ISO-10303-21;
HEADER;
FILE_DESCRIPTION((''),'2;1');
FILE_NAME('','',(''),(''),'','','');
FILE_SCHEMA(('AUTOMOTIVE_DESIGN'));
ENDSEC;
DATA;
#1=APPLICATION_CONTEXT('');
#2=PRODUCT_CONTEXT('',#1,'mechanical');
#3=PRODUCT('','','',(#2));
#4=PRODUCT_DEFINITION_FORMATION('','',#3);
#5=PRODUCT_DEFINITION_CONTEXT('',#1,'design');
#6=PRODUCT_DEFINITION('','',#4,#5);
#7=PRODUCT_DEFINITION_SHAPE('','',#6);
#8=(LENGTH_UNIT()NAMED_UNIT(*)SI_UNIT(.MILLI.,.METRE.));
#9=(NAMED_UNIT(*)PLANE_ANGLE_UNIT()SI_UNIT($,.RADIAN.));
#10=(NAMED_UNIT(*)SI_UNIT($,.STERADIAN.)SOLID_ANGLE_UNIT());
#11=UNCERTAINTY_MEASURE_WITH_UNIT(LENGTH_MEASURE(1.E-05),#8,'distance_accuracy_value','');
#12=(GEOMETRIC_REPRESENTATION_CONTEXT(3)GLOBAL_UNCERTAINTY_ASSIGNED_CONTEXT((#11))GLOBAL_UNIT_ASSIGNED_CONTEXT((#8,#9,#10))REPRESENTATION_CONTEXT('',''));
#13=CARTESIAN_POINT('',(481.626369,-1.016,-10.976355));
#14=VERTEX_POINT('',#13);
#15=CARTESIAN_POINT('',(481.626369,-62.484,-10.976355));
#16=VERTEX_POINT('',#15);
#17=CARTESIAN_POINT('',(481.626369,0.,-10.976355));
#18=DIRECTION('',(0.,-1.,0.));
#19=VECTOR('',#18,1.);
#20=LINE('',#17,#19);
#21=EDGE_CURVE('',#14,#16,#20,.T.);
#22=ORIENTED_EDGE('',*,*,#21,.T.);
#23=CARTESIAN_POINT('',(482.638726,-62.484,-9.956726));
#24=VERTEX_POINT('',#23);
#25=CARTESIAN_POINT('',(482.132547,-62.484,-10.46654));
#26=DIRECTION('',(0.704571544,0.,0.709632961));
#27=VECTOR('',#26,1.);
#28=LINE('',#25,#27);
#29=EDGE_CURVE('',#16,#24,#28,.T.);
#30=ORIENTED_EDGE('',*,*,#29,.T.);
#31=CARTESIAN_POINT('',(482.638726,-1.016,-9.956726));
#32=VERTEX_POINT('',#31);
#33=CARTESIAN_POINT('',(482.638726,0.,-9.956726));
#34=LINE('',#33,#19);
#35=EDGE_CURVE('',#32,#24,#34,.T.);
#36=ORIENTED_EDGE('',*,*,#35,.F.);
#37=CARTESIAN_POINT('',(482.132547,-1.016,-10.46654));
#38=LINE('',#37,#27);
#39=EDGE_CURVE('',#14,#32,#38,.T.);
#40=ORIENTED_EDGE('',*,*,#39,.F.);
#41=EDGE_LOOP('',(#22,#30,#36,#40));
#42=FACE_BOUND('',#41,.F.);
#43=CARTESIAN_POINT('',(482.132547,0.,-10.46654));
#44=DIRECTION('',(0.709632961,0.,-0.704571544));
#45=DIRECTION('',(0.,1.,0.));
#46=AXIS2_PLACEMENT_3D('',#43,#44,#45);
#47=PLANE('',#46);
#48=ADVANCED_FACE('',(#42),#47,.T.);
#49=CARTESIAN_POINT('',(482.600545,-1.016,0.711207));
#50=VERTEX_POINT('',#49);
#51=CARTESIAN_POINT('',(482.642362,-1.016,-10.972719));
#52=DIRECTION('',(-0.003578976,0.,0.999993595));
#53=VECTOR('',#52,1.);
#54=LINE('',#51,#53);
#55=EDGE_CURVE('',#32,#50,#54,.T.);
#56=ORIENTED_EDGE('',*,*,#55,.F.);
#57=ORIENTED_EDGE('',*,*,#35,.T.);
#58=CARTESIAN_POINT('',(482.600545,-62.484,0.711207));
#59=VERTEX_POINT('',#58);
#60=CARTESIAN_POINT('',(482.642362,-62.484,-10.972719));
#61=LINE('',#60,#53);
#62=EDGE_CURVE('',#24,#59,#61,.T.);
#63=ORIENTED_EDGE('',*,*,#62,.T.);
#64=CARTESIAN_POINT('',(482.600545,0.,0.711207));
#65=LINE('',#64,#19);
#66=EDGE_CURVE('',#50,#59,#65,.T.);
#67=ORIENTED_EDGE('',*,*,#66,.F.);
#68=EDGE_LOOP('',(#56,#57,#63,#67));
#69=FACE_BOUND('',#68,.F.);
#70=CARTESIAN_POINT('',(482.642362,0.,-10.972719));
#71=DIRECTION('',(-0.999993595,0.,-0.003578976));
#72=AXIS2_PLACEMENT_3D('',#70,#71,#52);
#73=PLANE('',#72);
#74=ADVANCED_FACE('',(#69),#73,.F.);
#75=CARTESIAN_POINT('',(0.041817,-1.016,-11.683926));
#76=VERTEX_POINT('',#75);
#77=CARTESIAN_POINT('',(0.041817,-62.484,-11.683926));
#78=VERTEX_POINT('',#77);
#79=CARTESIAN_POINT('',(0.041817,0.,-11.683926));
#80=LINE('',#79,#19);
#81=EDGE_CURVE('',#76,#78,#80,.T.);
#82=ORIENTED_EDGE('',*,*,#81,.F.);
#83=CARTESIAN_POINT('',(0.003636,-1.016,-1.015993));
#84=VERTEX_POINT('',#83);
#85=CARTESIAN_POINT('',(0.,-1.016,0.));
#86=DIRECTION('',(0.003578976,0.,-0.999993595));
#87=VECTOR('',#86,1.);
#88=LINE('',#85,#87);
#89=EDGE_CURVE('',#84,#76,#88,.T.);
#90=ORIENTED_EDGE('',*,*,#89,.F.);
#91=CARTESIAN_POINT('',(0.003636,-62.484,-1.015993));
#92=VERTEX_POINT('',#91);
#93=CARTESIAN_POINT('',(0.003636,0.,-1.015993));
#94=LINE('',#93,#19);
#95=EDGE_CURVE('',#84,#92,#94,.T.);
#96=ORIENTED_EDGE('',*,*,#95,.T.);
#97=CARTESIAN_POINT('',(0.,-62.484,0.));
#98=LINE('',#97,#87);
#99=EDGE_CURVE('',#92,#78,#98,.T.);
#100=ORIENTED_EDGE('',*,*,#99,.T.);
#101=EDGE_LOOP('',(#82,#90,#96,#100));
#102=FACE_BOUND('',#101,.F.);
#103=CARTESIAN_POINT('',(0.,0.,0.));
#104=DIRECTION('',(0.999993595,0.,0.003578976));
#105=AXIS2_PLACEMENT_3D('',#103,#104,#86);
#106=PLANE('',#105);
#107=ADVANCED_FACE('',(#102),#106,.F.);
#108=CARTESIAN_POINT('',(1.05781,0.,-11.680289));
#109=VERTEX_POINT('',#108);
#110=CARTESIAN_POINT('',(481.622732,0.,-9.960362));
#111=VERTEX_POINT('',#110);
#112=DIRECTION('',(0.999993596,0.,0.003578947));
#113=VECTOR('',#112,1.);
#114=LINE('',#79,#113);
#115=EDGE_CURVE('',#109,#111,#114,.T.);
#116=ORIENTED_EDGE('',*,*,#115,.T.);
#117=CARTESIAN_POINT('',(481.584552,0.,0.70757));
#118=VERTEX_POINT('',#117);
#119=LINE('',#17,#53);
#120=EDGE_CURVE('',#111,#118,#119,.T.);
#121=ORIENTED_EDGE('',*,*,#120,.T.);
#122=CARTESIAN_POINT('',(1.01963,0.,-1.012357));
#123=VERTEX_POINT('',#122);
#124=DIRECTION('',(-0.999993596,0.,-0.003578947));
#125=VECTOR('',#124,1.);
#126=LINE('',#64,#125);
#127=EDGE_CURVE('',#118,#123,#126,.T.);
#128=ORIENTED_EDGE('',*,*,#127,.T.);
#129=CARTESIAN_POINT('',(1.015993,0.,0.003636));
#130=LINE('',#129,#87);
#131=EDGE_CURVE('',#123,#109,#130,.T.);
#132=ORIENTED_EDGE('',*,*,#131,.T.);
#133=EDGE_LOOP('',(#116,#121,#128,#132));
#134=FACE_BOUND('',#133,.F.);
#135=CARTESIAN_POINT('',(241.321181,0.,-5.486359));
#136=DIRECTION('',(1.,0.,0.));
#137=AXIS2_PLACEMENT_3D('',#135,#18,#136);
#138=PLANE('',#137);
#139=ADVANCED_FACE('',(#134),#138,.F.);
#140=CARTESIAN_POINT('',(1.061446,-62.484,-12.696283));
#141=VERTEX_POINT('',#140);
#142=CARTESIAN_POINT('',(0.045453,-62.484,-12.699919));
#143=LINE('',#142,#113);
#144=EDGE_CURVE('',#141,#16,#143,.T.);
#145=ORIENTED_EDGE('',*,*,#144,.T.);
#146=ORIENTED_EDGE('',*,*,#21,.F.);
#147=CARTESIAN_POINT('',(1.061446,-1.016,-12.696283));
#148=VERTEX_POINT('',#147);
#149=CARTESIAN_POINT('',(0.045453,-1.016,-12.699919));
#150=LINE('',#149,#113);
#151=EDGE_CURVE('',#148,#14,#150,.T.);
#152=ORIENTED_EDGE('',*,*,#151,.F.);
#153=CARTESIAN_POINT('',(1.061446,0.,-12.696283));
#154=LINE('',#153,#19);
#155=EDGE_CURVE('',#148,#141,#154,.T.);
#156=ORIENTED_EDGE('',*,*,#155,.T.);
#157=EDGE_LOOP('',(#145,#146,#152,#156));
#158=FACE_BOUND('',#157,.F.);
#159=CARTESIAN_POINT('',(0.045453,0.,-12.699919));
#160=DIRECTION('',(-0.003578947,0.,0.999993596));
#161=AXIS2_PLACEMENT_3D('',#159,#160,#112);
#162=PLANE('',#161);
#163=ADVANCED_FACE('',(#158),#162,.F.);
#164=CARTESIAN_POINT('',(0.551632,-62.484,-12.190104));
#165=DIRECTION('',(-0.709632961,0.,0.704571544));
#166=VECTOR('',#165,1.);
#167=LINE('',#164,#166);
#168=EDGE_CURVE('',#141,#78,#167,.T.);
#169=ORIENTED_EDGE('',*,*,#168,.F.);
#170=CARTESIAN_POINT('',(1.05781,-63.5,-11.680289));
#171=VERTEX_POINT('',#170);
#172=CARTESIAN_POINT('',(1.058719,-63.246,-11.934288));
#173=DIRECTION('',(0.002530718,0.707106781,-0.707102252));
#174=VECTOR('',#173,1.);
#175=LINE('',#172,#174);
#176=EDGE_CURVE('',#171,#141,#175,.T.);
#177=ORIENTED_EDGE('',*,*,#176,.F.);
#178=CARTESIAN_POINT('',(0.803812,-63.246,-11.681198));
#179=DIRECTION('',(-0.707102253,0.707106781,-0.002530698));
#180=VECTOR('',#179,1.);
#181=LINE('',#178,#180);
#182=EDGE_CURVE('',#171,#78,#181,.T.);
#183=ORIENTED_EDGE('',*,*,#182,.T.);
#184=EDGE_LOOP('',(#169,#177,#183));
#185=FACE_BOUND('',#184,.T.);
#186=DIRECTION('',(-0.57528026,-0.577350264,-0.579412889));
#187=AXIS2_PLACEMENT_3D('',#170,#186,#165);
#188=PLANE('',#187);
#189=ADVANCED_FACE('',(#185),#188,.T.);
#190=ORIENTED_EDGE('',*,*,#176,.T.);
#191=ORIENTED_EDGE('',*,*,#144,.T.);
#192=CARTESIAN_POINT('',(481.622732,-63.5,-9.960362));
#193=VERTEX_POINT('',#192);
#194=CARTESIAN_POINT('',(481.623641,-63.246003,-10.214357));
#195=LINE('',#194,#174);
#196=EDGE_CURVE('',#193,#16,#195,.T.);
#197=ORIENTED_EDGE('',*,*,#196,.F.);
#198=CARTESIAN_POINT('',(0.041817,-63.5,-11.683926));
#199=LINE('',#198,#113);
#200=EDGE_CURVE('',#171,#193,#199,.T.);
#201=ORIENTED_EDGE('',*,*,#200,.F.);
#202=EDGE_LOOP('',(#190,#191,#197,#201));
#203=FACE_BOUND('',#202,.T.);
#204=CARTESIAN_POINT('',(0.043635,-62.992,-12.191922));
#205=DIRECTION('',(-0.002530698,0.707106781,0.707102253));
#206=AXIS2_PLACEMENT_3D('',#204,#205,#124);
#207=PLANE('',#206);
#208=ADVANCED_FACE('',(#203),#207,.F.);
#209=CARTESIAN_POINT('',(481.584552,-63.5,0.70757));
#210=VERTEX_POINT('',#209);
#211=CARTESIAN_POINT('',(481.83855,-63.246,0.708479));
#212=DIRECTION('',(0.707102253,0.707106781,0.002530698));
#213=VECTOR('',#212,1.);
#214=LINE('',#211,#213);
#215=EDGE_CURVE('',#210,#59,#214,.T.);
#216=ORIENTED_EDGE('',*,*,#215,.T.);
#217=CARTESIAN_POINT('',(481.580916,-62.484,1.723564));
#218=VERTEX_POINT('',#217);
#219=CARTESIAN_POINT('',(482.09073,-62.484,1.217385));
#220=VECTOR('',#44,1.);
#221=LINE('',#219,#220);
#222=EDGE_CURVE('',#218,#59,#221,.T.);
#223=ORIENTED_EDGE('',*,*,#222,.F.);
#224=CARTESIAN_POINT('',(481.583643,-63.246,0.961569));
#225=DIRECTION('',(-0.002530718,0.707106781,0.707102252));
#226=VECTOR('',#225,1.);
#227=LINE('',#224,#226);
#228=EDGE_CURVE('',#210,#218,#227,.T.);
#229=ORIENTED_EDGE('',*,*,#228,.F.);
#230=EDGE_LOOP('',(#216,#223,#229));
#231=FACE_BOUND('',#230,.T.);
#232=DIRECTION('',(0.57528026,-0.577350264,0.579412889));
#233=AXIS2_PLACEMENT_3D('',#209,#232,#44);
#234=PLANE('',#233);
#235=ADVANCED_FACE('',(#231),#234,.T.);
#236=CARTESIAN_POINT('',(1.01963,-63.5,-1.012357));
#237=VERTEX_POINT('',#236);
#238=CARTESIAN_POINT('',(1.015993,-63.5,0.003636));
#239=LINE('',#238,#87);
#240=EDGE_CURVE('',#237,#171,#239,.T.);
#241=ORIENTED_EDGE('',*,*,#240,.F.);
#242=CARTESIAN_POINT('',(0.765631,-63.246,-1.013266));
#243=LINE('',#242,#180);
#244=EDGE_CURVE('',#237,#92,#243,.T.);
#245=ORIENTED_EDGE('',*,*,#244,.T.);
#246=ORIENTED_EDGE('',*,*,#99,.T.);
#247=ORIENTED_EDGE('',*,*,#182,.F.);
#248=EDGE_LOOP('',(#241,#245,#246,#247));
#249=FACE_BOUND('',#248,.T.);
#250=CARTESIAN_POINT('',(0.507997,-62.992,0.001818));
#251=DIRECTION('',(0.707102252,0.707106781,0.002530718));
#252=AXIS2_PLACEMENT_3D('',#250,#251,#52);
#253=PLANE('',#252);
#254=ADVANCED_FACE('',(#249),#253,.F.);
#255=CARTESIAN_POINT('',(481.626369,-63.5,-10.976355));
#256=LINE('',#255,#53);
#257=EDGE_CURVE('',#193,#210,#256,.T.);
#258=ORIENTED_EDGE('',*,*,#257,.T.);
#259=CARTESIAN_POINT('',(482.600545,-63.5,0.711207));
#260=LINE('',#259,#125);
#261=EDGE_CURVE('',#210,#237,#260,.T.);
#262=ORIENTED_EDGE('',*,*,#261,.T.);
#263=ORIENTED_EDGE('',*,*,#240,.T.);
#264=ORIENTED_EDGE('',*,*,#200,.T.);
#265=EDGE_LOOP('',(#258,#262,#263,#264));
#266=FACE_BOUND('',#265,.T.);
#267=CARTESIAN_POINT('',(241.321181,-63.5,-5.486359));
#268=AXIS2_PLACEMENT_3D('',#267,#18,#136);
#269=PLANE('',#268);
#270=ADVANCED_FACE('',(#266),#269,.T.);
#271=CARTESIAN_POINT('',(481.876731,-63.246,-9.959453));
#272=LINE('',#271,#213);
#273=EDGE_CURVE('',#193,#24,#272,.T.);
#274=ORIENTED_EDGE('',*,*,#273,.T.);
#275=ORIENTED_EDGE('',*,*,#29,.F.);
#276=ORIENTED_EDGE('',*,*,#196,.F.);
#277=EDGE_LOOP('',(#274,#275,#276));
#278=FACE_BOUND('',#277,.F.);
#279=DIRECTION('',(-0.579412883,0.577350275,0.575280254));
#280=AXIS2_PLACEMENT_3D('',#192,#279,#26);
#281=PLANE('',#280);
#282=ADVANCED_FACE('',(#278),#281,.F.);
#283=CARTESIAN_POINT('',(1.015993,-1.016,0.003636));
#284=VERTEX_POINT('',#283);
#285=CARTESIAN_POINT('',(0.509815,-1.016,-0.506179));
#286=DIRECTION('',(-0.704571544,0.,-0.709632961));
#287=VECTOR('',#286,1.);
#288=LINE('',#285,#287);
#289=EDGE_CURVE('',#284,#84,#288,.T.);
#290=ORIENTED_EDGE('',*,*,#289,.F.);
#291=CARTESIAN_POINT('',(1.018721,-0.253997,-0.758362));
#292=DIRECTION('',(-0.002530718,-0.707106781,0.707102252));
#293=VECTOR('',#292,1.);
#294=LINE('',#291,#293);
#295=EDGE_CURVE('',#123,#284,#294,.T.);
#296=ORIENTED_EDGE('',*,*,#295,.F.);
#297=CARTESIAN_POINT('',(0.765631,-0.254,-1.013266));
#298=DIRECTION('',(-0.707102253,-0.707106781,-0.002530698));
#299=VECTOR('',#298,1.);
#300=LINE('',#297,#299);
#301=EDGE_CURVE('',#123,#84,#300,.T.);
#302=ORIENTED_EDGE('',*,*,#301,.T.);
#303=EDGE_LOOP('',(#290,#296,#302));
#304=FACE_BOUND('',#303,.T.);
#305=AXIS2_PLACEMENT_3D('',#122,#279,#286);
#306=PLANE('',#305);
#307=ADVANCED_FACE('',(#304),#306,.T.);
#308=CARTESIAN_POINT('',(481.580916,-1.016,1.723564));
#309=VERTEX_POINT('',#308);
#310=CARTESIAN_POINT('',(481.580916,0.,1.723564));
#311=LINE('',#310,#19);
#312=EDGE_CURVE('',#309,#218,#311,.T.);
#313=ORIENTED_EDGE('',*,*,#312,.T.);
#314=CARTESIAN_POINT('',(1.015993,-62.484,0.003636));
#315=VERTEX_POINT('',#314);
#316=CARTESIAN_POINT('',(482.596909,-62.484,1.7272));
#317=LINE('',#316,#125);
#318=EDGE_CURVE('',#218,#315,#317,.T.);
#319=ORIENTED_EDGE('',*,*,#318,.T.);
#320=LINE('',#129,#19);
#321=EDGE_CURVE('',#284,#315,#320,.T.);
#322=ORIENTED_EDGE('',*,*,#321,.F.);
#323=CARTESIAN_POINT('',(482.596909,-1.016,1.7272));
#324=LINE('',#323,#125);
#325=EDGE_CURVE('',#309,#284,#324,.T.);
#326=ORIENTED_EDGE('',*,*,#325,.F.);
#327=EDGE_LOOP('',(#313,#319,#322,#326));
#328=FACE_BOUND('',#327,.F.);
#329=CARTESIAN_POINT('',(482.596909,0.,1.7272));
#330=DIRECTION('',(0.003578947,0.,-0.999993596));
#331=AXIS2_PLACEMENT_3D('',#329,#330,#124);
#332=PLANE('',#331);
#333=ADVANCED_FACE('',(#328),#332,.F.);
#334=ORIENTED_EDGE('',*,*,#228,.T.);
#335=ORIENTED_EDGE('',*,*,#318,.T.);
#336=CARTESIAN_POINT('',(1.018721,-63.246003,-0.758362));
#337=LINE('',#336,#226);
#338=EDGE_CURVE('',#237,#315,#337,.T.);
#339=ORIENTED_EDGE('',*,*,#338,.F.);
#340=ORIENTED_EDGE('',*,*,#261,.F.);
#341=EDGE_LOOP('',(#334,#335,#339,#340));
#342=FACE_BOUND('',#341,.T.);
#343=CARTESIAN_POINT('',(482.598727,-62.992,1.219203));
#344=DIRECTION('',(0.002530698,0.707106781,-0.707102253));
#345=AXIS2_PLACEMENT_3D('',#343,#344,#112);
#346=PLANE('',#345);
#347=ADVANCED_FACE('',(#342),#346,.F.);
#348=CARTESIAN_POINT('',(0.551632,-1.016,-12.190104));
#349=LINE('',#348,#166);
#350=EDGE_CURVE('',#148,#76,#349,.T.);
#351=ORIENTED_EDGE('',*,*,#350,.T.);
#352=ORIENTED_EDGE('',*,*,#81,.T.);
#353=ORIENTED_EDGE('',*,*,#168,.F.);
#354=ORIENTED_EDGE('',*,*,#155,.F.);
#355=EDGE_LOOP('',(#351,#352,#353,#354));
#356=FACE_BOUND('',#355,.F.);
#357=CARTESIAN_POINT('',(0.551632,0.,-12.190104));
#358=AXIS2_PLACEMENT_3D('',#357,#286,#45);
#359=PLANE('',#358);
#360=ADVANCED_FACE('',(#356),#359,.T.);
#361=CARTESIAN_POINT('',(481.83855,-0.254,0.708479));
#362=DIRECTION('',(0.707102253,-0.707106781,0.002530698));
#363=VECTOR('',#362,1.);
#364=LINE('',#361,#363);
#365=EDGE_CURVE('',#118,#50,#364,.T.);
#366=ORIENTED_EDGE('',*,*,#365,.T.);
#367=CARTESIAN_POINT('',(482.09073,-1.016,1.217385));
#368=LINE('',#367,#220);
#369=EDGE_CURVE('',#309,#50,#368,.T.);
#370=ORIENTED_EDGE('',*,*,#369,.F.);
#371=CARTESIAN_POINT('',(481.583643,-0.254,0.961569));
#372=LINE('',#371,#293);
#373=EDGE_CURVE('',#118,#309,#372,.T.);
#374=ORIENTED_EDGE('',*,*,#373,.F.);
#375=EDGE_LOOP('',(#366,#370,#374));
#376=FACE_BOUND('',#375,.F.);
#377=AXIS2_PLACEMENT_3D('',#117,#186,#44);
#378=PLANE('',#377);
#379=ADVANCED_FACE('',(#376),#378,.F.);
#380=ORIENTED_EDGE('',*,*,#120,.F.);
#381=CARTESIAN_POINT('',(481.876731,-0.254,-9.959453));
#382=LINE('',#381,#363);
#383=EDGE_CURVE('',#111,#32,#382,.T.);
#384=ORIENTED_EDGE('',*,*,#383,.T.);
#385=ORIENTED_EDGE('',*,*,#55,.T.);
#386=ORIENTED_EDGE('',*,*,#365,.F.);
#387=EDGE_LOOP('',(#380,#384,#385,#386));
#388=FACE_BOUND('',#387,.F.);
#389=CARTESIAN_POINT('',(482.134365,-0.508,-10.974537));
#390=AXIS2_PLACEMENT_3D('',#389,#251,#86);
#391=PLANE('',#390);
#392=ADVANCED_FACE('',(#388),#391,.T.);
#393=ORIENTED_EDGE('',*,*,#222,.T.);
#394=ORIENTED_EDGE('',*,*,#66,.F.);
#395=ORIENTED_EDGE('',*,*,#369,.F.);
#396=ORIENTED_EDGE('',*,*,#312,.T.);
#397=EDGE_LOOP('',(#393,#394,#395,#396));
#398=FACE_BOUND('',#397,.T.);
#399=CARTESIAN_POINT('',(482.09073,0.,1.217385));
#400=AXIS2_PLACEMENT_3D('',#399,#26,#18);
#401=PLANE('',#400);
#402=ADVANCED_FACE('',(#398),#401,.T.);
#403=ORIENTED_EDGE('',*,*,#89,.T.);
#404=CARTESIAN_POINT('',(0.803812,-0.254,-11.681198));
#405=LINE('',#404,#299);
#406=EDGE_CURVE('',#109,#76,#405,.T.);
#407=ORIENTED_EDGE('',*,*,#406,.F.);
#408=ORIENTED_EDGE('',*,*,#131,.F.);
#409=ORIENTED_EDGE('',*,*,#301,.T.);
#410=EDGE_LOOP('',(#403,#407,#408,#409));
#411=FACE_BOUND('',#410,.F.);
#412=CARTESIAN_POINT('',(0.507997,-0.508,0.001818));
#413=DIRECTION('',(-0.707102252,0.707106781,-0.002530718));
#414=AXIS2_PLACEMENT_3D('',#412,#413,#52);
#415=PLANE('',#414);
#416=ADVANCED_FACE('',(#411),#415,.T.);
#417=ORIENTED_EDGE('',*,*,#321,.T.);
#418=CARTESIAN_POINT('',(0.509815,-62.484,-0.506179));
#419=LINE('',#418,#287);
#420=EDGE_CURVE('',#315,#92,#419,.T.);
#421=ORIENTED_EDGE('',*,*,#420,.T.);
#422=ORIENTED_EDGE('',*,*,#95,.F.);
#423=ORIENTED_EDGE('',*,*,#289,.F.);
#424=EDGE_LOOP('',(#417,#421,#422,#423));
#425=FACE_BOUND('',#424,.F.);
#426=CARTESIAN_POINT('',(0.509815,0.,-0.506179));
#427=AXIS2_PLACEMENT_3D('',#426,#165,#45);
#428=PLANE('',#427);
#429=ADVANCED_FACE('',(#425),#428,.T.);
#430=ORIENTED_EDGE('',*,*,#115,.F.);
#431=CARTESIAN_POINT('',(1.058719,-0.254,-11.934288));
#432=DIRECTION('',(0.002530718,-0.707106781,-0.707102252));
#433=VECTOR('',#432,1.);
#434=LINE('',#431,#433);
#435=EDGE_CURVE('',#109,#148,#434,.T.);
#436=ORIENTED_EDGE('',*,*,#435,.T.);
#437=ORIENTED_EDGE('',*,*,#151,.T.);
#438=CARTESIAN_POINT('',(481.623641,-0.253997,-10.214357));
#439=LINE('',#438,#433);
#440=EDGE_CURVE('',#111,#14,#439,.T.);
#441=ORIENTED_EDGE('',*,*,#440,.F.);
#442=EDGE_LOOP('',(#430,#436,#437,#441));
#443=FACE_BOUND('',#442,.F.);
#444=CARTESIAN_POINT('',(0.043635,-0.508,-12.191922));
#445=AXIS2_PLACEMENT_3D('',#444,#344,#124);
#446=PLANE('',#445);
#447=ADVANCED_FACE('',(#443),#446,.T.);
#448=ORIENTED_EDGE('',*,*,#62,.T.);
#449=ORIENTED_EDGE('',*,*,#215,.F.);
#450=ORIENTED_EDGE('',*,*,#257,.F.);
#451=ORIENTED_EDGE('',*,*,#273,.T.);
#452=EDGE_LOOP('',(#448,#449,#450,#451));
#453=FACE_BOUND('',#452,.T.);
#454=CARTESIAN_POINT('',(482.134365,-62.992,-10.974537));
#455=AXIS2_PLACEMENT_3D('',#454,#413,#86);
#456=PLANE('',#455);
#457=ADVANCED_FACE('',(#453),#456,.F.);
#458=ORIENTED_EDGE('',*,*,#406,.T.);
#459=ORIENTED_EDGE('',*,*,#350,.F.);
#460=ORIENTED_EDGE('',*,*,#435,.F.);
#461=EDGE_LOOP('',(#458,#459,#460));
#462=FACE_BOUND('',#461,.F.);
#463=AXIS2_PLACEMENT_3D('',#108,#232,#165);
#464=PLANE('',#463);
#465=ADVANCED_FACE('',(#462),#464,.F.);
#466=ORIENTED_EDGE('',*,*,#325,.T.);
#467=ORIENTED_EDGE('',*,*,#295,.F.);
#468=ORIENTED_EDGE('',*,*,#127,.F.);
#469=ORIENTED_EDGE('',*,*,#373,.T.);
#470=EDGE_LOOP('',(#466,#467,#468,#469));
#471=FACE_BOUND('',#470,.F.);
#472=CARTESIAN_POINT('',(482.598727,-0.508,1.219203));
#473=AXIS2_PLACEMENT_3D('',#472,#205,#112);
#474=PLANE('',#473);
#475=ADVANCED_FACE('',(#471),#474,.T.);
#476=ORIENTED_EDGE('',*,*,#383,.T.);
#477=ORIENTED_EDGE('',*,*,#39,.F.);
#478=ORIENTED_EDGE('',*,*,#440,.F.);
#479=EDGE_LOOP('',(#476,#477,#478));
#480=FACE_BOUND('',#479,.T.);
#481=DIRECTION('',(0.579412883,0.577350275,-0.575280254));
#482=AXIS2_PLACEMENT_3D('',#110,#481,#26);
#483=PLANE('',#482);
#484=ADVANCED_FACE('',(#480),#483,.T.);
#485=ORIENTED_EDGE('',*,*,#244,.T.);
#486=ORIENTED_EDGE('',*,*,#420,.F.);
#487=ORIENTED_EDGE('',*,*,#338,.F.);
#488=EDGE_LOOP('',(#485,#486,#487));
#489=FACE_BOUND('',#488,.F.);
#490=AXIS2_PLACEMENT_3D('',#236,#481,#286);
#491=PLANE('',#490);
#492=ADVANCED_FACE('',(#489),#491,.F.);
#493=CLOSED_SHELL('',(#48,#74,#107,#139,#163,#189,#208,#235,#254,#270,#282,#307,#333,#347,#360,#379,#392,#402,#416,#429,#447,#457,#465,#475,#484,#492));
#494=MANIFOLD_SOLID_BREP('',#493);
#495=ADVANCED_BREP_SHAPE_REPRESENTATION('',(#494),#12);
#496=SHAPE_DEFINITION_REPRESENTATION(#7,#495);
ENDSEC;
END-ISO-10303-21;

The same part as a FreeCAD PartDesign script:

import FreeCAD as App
import Part
import Sketcher
from FreeCAD import Vector
Q = App.Units.Quantity


def add_polygon(sketch, points):
    """Adds a closed chain of lines whose ends are joined by coincident constraints."""
    first, n = sketch.GeometryCount, len(points)
    for a, b in zip(points, points[1:] + points[:1]):
        sketch.addGeometry(Part.LineSegment(App.Vector(*a, 0), App.Vector(*b, 0)), False)
    for i in range(n):
        sketch.addConstraint(Sketcher.Constraint("Coincident", first + i, 2, first + (i + 1) % n, 1))

doc = App.newDocument("Part")
body = doc.addObject("PartDesign::Body", "Body")

# Sketch on XZ plane
sketch1 = body.newObject("Sketcher::SketchObject", "Sketch")
sketch1.AttachmentSupport = (doc.getObject("XZ_Plane"), [""])
sketch1.MapMode = "FlatFace"
add_polygon(sketch1, [(483, 2), (0, 0), (0, -13), (483, -11)])  # lines 0-3
sketch1.addConstraint(Sketcher.Constraint("Coincident", 0, 2, -1, 1))
sketch1.addConstraint(Sketcher.Constraint("Perpendicular", 0, 1))
sketch1.addConstraint(Sketcher.Constraint("Perpendicular", 1, 2))
sketch1.addConstraint(Sketcher.Constraint("Perpendicular", 2, 3))
sketch1.addConstraint(Sketcher.Constraint("Distance", 0, Q("19 in")))
sketch1.addConstraint(Sketcher.Constraint("Distance", 1, Q("0.5 in")))
sketch1.addConstraint(Sketcher.Constraint("DistanceY", -1, 1, 3, 2, Q("0.068 in")))
pad1 = body.newObject("PartDesign::Pad", "Pad")
pad1.Profile = sketch1
pad1.Length = Q("2.5 in")
doc.recompute()

chamfer = body.newObject("PartDesign::Chamfer", "Chamfer")
chamfer.Base = (pad1, ["Edge1"])
chamfer.UseAllEdges = True
chamfer.Size = Q("0.04 in")

doc.recompute()
